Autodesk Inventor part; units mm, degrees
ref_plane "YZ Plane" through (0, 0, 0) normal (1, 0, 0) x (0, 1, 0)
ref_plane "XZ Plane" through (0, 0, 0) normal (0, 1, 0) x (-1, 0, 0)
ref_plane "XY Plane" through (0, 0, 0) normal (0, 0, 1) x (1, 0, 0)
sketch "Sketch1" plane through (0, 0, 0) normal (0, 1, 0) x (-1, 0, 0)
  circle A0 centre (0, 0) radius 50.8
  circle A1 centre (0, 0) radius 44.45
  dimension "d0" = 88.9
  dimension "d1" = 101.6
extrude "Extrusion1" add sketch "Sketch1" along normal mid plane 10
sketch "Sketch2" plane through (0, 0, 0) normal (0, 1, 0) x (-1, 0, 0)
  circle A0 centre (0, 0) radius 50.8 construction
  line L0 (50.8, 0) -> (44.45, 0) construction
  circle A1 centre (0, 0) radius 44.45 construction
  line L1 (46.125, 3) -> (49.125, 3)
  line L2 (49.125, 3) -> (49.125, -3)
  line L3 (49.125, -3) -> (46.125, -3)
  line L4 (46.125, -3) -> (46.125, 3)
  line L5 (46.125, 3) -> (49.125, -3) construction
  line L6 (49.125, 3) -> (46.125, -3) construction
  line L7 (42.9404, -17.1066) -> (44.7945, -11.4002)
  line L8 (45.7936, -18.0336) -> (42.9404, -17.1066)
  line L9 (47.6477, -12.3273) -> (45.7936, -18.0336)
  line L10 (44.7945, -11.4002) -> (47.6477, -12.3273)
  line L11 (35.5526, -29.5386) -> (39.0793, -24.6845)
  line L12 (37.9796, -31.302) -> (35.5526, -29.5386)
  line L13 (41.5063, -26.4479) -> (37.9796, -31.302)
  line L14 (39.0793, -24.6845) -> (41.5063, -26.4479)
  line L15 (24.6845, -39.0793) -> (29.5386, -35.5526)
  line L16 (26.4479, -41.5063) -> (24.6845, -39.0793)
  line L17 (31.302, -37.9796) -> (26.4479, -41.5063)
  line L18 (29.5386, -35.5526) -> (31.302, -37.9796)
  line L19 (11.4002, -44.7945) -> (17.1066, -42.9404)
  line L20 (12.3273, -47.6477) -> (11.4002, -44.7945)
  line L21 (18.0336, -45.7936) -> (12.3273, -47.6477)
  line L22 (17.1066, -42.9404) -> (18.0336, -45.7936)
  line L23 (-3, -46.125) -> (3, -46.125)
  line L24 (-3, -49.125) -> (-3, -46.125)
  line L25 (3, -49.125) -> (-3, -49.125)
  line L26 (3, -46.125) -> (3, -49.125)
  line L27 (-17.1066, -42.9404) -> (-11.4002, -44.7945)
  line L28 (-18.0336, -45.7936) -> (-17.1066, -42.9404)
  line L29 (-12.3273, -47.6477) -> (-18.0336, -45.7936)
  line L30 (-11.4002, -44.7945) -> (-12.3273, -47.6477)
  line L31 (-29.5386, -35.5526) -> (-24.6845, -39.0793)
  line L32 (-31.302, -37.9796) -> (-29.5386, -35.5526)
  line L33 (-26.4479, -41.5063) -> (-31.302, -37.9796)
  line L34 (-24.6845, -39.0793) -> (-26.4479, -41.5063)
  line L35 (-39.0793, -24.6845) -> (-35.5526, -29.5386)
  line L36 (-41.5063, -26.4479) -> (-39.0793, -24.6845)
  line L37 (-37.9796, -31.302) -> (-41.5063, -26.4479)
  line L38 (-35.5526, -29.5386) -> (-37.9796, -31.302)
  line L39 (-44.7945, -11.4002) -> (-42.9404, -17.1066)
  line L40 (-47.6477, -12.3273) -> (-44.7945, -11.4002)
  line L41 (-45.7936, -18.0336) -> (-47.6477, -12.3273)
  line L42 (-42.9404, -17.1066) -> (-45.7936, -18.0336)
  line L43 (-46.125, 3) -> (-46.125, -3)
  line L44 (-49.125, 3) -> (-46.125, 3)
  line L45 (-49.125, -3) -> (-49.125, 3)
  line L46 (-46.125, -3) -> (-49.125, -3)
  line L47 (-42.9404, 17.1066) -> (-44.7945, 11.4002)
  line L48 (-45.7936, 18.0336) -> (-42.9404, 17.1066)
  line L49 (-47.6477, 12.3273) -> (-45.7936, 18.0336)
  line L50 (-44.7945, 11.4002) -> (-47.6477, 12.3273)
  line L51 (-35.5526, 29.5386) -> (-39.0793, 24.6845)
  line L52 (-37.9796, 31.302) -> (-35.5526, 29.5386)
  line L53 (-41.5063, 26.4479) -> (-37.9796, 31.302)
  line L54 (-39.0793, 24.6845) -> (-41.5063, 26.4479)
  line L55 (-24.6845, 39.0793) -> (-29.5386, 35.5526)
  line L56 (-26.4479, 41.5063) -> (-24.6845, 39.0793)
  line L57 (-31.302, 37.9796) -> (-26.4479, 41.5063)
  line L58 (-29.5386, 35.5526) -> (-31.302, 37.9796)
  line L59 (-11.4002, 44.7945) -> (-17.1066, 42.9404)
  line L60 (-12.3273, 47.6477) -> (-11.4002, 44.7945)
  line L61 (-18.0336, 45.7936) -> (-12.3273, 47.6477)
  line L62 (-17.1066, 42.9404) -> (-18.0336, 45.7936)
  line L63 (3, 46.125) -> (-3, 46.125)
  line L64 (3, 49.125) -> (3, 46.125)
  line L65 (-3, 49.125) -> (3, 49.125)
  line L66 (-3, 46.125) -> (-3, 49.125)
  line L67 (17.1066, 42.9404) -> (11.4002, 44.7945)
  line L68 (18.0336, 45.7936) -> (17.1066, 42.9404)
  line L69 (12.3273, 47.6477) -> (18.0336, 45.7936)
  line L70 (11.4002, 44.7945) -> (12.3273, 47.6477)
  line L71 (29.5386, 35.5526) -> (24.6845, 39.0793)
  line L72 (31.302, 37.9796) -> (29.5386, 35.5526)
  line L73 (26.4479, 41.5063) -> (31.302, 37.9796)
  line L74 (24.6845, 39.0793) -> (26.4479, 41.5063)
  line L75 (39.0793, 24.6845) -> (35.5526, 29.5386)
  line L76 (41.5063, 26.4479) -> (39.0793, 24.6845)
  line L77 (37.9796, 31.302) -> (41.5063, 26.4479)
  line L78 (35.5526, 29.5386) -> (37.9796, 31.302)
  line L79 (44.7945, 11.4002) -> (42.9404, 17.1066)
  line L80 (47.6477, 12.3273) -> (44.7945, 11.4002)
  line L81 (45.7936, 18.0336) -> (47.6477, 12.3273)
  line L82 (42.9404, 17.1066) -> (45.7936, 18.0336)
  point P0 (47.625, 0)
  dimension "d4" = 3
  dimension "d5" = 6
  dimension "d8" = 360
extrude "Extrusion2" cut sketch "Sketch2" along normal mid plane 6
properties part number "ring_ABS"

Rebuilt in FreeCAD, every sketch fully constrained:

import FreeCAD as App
import Part
import Sketcher
from FreeCAD import Vector
Q = App.Units.Quantity

doc = App.newDocument("Part")
body = doc.addObject("PartDesign::Body", "Body")

# Sketch on XZ plane
sketch1 = body.newObject("Sketcher::SketchObject", "Sketch")
sketch1.AttachmentSupport = (doc.getObject("XZ_Plane"), [""])
sketch1.MapMode = "FlatFace"
sketch1.addGeometry([
    Part.Circle(Vector(0, 0, 0), Vector(0, 0, 1), 51),
    Part.Circle(Vector(0, 0, 0), Vector(0, 0, 1), 44),
], False)
sketch1.addConstraint([
    Sketcher.Constraint("Coincident", 0, 3, -1, 1),
    Sketcher.Constraint("Coincident", 1, 3, -1, 1),
    Sketcher.Constraint("Diameter", 0, Q("101.6 mm")),
    Sketcher.Constraint("Diameter", 1, Q("88.9 mm")),
])
pad1 = body.newObject("PartDesign::Pad", "Pad")
pad1.Profile = sketch1
pad1.Length = 10
pad1.Midplane = True

# Sketch on XZ plane
sketch2 = body.newObject("Sketcher::SketchObject", "Sketch001")
sketch2.AttachmentSupport = (doc.getObject("XZ_Plane"), [""])
sketch2.MapMode = "FlatFace"
sketch2.addGeometry([
    Part.LineSegment(Vector(-49.1, 3, 0), Vector(-46.1, 3, 0)),  # 0
    Part.LineSegment(Vector(-46.1, 3, 0), Vector(-46.1, -3, 0)),  # 1
    Part.LineSegment(Vector(-46.1, -3, 0), Vector(-49.1, -3, 0)),  # 2
    Part.LineSegment(Vector(-49.1, -3, 0), Vector(-49.1, 3, 0)),  # 3
    Part.LineSegment(Vector(-44.8, -11.4, 0), Vector(-42.9, -17.1, 0)),  # 4
    Part.LineSegment(Vector(-42.9, -17.1, 0), Vector(-45.8, -18, 0)),  # 5
    Part.LineSegment(Vector(-45.8, -18, 0), Vector(-47.6, -12.3, 0)),  # 6
    Part.LineSegment(Vector(-47.6, -12.3, 0), Vector(-44.8, -11.4, 0)),  # 7
    Part.LineSegment(Vector(-39.1, -24.7, 0), Vector(-35.6, -29.5, 0)),  # 8
    Part.LineSegment(Vector(-35.6, -29.5, 0), Vector(-38, -31.3, 0)),  # 9
    Part.LineSegment(Vector(-38, -31.3, 0), Vector(-41.5, -26.4, 0)),  # 10
    Part.LineSegment(Vector(-41.5, -26.4, 0), Vector(-39.1, -24.7, 0)),  # 11
    Part.LineSegment(Vector(-29.5, -35.6, 0), Vector(-24.7, -39.1, 0)),  # 12
    Part.LineSegment(Vector(-24.7, -39.1, 0), Vector(-26.4, -41.5, 0)),  # 13
    Part.LineSegment(Vector(-26.4, -41.5, 0), Vector(-31.3, -38, 0)),  # 14
    Part.LineSegment(Vector(-31.3, -38, 0), Vector(-29.5, -35.6, 0)),  # 15
    Part.LineSegment(Vector(-17.1, -42.9, 0), Vector(-11.4, -44.8, 0)),  # 16
    Part.LineSegment(Vector(-11.4, -44.8, 0), Vector(-12.3, -47.6, 0)),  # 17
    Part.LineSegment(Vector(-12.3, -47.6, 0), Vector(-18, -45.8, 0)),  # 18
    Part.LineSegment(Vector(-18, -45.8, 0), Vector(-17.1, -42.9, 0)),  # 19
    Part.LineSegment(Vector(-3, -46.1, 0), Vector(3, -46.1, 0)),  # 20
    Part.LineSegment(Vector(3, -46.1, 0), Vector(3, -49.1, 0)),  # 21
    Part.LineSegment(Vector(3, -49.1, 0), Vector(-3, -49.1, 0)),  # 22
    Part.LineSegment(Vector(-3, -49.1, 0), Vector(-3, -46.1, 0)),  # 23
    Part.LineSegment(Vector(11.4, -44.8, 0), Vector(17.1, -42.9, 0)),  # 24
    Part.LineSegment(Vector(17.1, -42.9, 0), Vector(18, -45.8, 0)),  # 25
    Part.LineSegment(Vector(18, -45.8, 0), Vector(12.3, -47.6, 0)),  # 26
    Part.LineSegment(Vector(12.3, -47.6, 0), Vector(11.4, -44.8, 0)),  # 27
    Part.LineSegment(Vector(24.7, -39.1, 0), Vector(29.5, -35.6, 0)),  # 28
    Part.LineSegment(Vector(29.5, -35.6, 0), Vector(31.3, -38, 0)),  # 29
    Part.LineSegment(Vector(31.3, -38, 0), Vector(26.4, -41.5, 0)),  # 30
    Part.LineSegment(Vector(26.4, -41.5, 0), Vector(24.7, -39.1, 0)),  # 31
    Part.LineSegment(Vector(35.6, -29.5, 0), Vector(39.1, -24.7, 0)),  # 32
    Part.LineSegment(Vector(39.1, -24.7, 0), Vector(41.5, -26.4, 0)),  # 33
    Part.LineSegment(Vector(41.5, -26.4, 0), Vector(38, -31.3, 0)),  # 34
    Part.LineSegment(Vector(38, -31.3, 0), Vector(35.6, -29.5, 0)),  # 35
    Part.LineSegment(Vector(42.9, -17.1, 0), Vector(44.8, -11.4, 0)),  # 36
    Part.LineSegment(Vector(44.8, -11.4, 0), Vector(47.6, -12.3, 0)),  # 37
    Part.LineSegment(Vector(47.6, -12.3, 0), Vector(45.8, -18, 0)),  # 38
    Part.LineSegment(Vector(45.8, -18, 0), Vector(42.9, -17.1, 0)),  # 39
    Part.LineSegment(Vector(46.1, -3, 0), Vector(46.1, 3, 0)),  # 40
    Part.LineSegment(Vector(46.1, 3, 0), Vector(49.1, 3, 0)),  # 41
    Part.LineSegment(Vector(49.1, 3, 0), Vector(49.1, -3, 0)),  # 42
    Part.LineSegment(Vector(49.1, -3, 0), Vector(46.1, -3, 0)),  # 43
    Part.LineSegment(Vector(44.8, 11.4, 0), Vector(42.9, 17.1, 0)),  # 44
    Part.LineSegment(Vector(42.9, 17.1, 0), Vector(45.8, 18, 0)),  # 45
    Part.LineSegment(Vector(45.8, 18, 0), Vector(47.6, 12.3, 0)),  # 46
    Part.LineSegment(Vector(47.6, 12.3, 0), Vector(44.8, 11.4, 0)),  # 47
    Part.LineSegment(Vector(39.1, 24.7, 0), Vector(35.6, 29.5, 0)),  # 48
    Part.LineSegment(Vector(35.6, 29.5, 0), Vector(38, 31.3, 0)),  # 49
    Part.LineSegment(Vector(38, 31.3, 0), Vector(41.5, 26.4, 0)),  # 50
    Part.LineSegment(Vector(41.5, 26.4, 0), Vector(39.1, 24.7, 0)),  # 51
    Part.LineSegment(Vector(29.5, 35.6, 0), Vector(24.7, 39.1, 0)),  # 52
    Part.LineSegment(Vector(24.7, 39.1, 0), Vector(26.4, 41.5, 0)),  # 53
    Part.LineSegment(Vector(26.4, 41.5, 0), Vector(31.3, 38, 0)),  # 54
    Part.LineSegment(Vector(31.3, 38, 0), Vector(29.5, 35.6, 0)),  # 55
    Part.LineSegment(Vector(17.1, 42.9, 0), Vector(11.4, 44.8, 0)),  # 56
    Part.LineSegment(Vector(11.4, 44.8, 0), Vector(12.3, 47.6, 0)),  # 57
    Part.LineSegment(Vector(12.3, 47.6, 0), Vector(18, 45.8, 0)),  # 58
    Part.LineSegment(Vector(18, 45.8, 0), Vector(17.1, 42.9, 0)),  # 59
    Part.LineSegment(Vector(3, 46.1, 0), Vector(-3, 46.1, 0)),  # 60
    Part.LineSegment(Vector(-3, 46.1, 0), Vector(-3, 49.1, 0)),  # 61
    Part.LineSegment(Vector(-3, 49.1, 0), Vector(3, 49.1, 0)),  # 62
    Part.LineSegment(Vector(3, 49.1, 0), Vector(3, 46.1, 0)),  # 63
    Part.LineSegment(Vector(-11.4, 44.8, 0), Vector(-17.1, 42.9, 0)),  # 64
    Part.LineSegment(Vector(-17.1, 42.9, 0), Vector(-18, 45.8, 0)),  # 65
    Part.LineSegment(Vector(-18, 45.8, 0), Vector(-12.3, 47.6, 0)),  # 66
    Part.LineSegment(Vector(-12.3, 47.6, 0), Vector(-11.4, 44.8, 0)),  # 67
    Part.LineSegment(Vector(-24.7, 39.1, 0), Vector(-29.5, 35.6, 0)),  # 68
    Part.LineSegment(Vector(-29.5, 35.6, 0), Vector(-31.3, 38, 0)),  # 69
    Part.LineSegment(Vector(-31.3, 38, 0), Vector(-26.4, 41.5, 0)),  # 70
    Part.LineSegment(Vector(-26.4, 41.5, 0), Vector(-24.7, 39.1, 0)),  # 71
    Part.LineSegment(Vector(-35.6, 29.5, 0), Vector(-39.1, 24.7, 0)),  # 72
    Part.LineSegment(Vector(-39.1, 24.7, 0), Vector(-41.5, 26.4, 0)),  # 73
    Part.LineSegment(Vector(-41.5, 26.4, 0), Vector(-38, 31.3, 0)),  # 74
    Part.LineSegment(Vector(-38, 31.3, 0), Vector(-35.6, 29.5, 0)),  # 75
    Part.LineSegment(Vector(-42.9, 17.1, 0), Vector(-44.8, 11.4, 0)),  # 76
    Part.LineSegment(Vector(-44.8, 11.4, 0), Vector(-47.6, 12.3, 0)),  # 77
    Part.LineSegment(Vector(-47.6, 12.3, 0), Vector(-45.8, 18, 0)),  # 78
    Part.LineSegment(Vector(-45.8, 18, 0), Vector(-42.9, 17.1, 0)),  # 79
], False)
sketch2.addConstraint([
    Sketcher.Constraint("Coincident", 0, 2, 1, 1),
    Sketcher.Constraint("Coincident", 1, 2, 2, 1),
    Sketcher.Constraint("Coincident", 2, 2, 3, 1),
    Sketcher.Constraint("Coincident", 3, 2, 0, 1),
    Sketcher.Constraint("Coincident", 4, 2, 5, 1),
    Sketcher.Constraint("Coincident", 5, 2, 6, 1),
    Sketcher.Constraint("Coincident", 6, 2, 7, 1),
    Sketcher.Constraint("Coincident", 7, 2, 4, 1),
    Sketcher.Constraint("Coincident", 8, 2, 9, 1),
    Sketcher.Constraint("Coincident", 9, 2, 10, 1),
    Sketcher.Constraint("Coincident", 10, 2, 11, 1),
    Sketcher.Constraint("Coincident", 11, 2, 8, 1),
    Sketcher.Constraint("Coincident", 12, 2, 13, 1),
    Sketcher.Constraint("Coincident", 13, 2, 14, 1),
    Sketcher.Constraint("Coincident", 14, 2, 15, 1),
    Sketcher.Constraint("Coincident", 15, 2, 12, 1),
    Sketcher.Constraint("Coincident", 16, 2, 17, 1),
    Sketcher.Constraint("Coincident", 17, 2, 18, 1),
    Sketcher.Constraint("Coincident", 18, 2, 19, 1),
    Sketcher.Constraint("Coincident", 19, 2, 16, 1),
    Sketcher.Constraint("Coincident", 20, 2, 21, 1),
    Sketcher.Constraint("Coincident", 21, 2, 22, 1),
    Sketcher.Constraint("Coincident", 22, 2, 23, 1),
    Sketcher.Constraint("Coincident", 23, 2, 20, 1),
    Sketcher.Constraint("Coincident", 24, 2, 25, 1),
    Sketcher.Constraint("Coincident", 25, 2, 26, 1),
    Sketcher.Constraint("Coincident", 26, 2, 27, 1),
    Sketcher.Constraint("Coincident", 27, 2, 24, 1),
    Sketcher.Constraint("Coincident", 28, 2, 29, 1),
    Sketcher.Constraint("Coincident", 29, 2, 30, 1),
    Sketcher.Constraint("Coincident", 30, 2, 31, 1),
    Sketcher.Constraint("Coincident", 31, 2, 28, 1),
    Sketcher.Constraint("Coincident", 32, 2, 33, 1),
    Sketcher.Constraint("Coincident", 33, 2, 34, 1),
    Sketcher.Constraint("Coincident", 34, 2, 35, 1),
    Sketcher.Constraint("Coincident", 35, 2, 32, 1),
    Sketcher.Constraint("Coincident", 36, 2, 37, 1),
    Sketcher.Constraint("Coincident", 37, 2, 38, 1),
    Sketcher.Constraint("Coincident", 38, 2, 39, 1),
    Sketcher.Constraint("Coincident", 39, 2, 36, 1),
    Sketcher.Constraint("Coincident", 40, 2, 41, 1),
    Sketcher.Constraint("Coincident", 41, 2, 42, 1),
    Sketcher.Constraint("Coincident", 42, 2, 43, 1),
    Sketcher.Constraint("Coincident", 43, 2, 40, 1),
    Sketcher.Constraint("Coincident", 44, 2, 45, 1),
    Sketcher.Constraint("Coincident", 45, 2, 46, 1),
    Sketcher.Constraint("Coincident", 46, 2, 47, 1),
    Sketcher.Constraint("Coincident", 47, 2, 44, 1),
    Sketcher.Constraint("Coincident", 48, 2, 49, 1),
    Sketcher.Constraint("Coincident", 49, 2, 50, 1),
    Sketcher.Constraint("Coincident", 50, 2, 51, 1),
    Sketcher.Constraint("Coincident", 51, 2, 48, 1),
    Sketcher.Constraint("Coincident", 52, 2, 53, 1),
    Sketcher.Constraint("Coincident", 53, 2, 54, 1),
    Sketcher.Constraint("Coincident", 54, 2, 55, 1),
    Sketcher.Constraint("Coincident", 55, 2, 52, 1),
    Sketcher.Constraint("Coincident", 56, 2, 57, 1),
    Sketcher.Constraint("Coincident", 57, 2, 58, 1),
    Sketcher.Constraint("Coincident", 58, 2, 59, 1),
    Sketcher.Constraint("Coincident", 59, 2, 56, 1),
    Sketcher.Constraint("Coincident", 60, 2, 61, 1),
    Sketcher.Constraint("Coincident", 61, 2, 62, 1),
    Sketcher.Constraint("Coincident", 62, 2, 63, 1),
    Sketcher.Constraint("Coincident", 63, 2, 60, 1),
    Sketcher.Constraint("Coincident", 64, 2, 65, 1),
    Sketcher.Constraint("Coincident", 65, 2, 66, 1),
    Sketcher.Constraint("Coincident", 66, 2, 67, 1),
    Sketcher.Constraint("Coincident", 67, 2, 64, 1),
    Sketcher.Constraint("Coincident", 68, 2, 69, 1),
    Sketcher.Constraint("Coincident", 69, 2, 70, 1),
    Sketcher.Constraint("Coincident", 70, 2, 71, 1),
    Sketcher.Constraint("Coincident", 71, 2, 68, 1),
    Sketcher.Constraint("Coincident", 72, 2, 73, 1),
    Sketcher.Constraint("Coincident", 73, 2, 74, 1),
    Sketcher.Constraint("Coincident", 74, 2, 75, 1),
    Sketcher.Constraint("Coincident", 75, 2, 72, 1),
    Sketcher.Constraint("Coincident", 76, 2, 77, 1),
    Sketcher.Constraint("Coincident", 77, 2, 78, 1),
    Sketcher.Constraint("Coincident", 78, 2, 79, 1),
    Sketcher.Constraint("Coincident", 79, 2, 76, 1),
    Sketcher.Constraint("Horizontal", 0),
    Sketcher.Constraint("Vertical", 1),
    Sketcher.Constraint("Horizontal", 2),
    Sketcher.Constraint("Vertical", 3),
    Sketcher.Constraint("Horizontal", 20),
    Sketcher.Constraint("Vertical", 21),
    Sketcher.Constraint("Horizontal", 22),
    Sketcher.Constraint("Vertical", 23),
    Sketcher.Constraint("Vertical", 40),
    Sketcher.Constraint("Horizontal", 41),
    Sketcher.Constraint("Vertical", 42),
    Sketcher.Constraint("Horizontal", 43),
    Sketcher.Constraint("Horizontal", 60),
    Sketcher.Constraint("Vertical", 61),
    Sketcher.Constraint("Horizontal", 62),
    Sketcher.Constraint("Vertical", 63),
    Sketcher.Constraint("Symmetric", 1, 2, 40, 2, -1, 1),
    Sketcher.Constraint("Symmetric", 3, 2, 42, 2, -1, 1),
    Sketcher.Constraint("Symmetric", 4, 2, 44, 2, -1, 1),
    Sketcher.Constraint("Symmetric", 5, 2, 45, 2, -1, 1),
    Sketcher.Constraint("Symmetric", 6, 2, 46, 2, -1, 1),
    Sketcher.Constraint("Symmetric", 7, 2, 47, 2, -1, 1),
    Sketcher.Constraint("Symmetric", 8, 2, 48, 2, -1, 1),
    Sketcher.Constraint("Symmetric", 9, 2, 49, 2, -1, 1),
    Sketcher.Constraint("Symmetric", 10, 2, 50, 2, -1, 1),
    Sketcher.Constraint("Symmetric", 11, 2, 51, 2, -1, 1),
    Sketcher.Constraint("Symmetric", 12, 2, 52, 2, -1, 1),
    Sketcher.Constraint("Symmetric", 13, 2, 53, 2, -1, 1),
    Sketcher.Constraint("Symmetric", 14, 2, 54, 2, -1, 1),
    Sketcher.Constraint("Symmetric", 15, 2, 55, 2, -1, 1),
    Sketcher.Constraint("Symmetric", 16, 2, 56, 2, -1, 1),
    Sketcher.Constraint("Symmetric", 17, 2, 57, 2, -1, 1),
    Sketcher.Constraint("Symmetric", 18, 2, 58, 2, -1, 1),
    Sketcher.Constraint("Symmetric", 19, 2, 59, 2, -1, 1),
    Sketcher.Constraint("Symmetric", 20, 2, 60, 2, -1, 1),
    Sketcher.Constraint("Symmetric", 22, 2, 62, 2, -1, 1),
    Sketcher.Constraint("Symmetric", 24, 2, 64, 2, -1, 1),
    Sketcher.Constraint("Symmetric", 25, 2, 65, 2, -1, 1),
    Sketcher.Constraint("Symmetric", 26, 2, 66, 2, -1, 1),
    Sketcher.Constraint("Symmetric", 27, 2, 67, 2, -1, 1),
    Sketcher.Constraint("Symmetric", 28, 2, 68, 2, -1, 1),
    Sketcher.Constraint("Symmetric", 29, 2, 69, 2, -1, 1),
    Sketcher.Constraint("Symmetric", 30, 2, 70, 2, -1, 1),
    Sketcher.Constraint("Symmetric", 31, 2, 71, 2, -1, 1),
    Sketcher.Constraint("Symmetric", 32, 2, 72, 2, -1, 1),
    Sketcher.Constraint("Symmetric", 33, 2, 73, 2, -1, 1),
    Sketcher.Constraint("Symmetric", 34, 2, 74, 2, -1, 1),
    Sketcher.Constraint("Symmetric", 35, 2, 75, 2, -1, 1),
    Sketcher.Constraint("Symmetric", 36, 2, 76, 2, -1, 1),
    Sketcher.Constraint("Symmetric", 37, 2, 77, 2, -1, 1),
    Sketcher.Constraint("Symmetric", 38, 2, 78, 2, -1, 1),
    Sketcher.Constraint("Symmetric", 39, 2, 79, 2, -1, 1),
    Sketcher.Constraint("Symmetric", 19, 2, 24, 2, -2),
    Sketcher.Constraint("Symmetric", 18, 2, 25, 2, -2),
    Sketcher.Constraint("Symmetric", 17, 2, 26, 2, -2),
    Sketcher.Constraint("Symmetric", 16, 2, 27, 2, -2),
    Sketcher.Constraint("Symmetric", 15, 2, 28, 2, -2),
    Sketcher.Constraint("Symmetric", 14, 2, 29, 2, -2),
    Sketcher.Constraint("Symmetric", 13, 2, 30, 2, -2),
    Sketcher.Constraint("Symmetric", 12, 2, 31, 2, -2),
    Sketcher.Constraint("Symmetric", 11, 2, 32, 2, -2),
    Sketcher.Constraint("Symmetric", 10, 2, 33, 2, -2),
    Sketcher.Constraint("Symmetric", 9, 2, 34, 2, -2),
    Sketcher.Constraint("Symmetric", 8, 2, 35, 2, -2),
    Sketcher.Constraint("Symmetric", 7, 2, 36, 2, -2),
    Sketcher.Constraint("Symmetric", 6, 2, 37, 2, -2),
    Sketcher.Constraint("Symmetric", 5, 2, 38, 2, -2),
    Sketcher.Constraint("Symmetric", 4, 2, 39, 2, -2),
    Sketcher.Constraint("Perpendicular", 4, 5),
    Sketcher.Constraint("Perpendicular", 5, 6),
    Sketcher.Constraint("Perpendicular", 6, 7),
    Sketcher.Constraint("Perpendicular", 8, 9),
    Sketcher.Constraint("Perpendicular", 9, 10),
    Sketcher.Constraint("Perpendicular", 10, 11),
    Sketcher.Constraint("Perpendicular", 12, 13),
    Sketcher.Constraint("Perpendicular", 13, 14),
    Sketcher.Constraint("Perpendicular", 14, 15),
    Sketcher.Constraint("Perpendicular", 16, 17),
    Sketcher.Constraint("Perpendicular", 17, 18),
    Sketcher.Constraint("Perpendicular", 18, 19),
    Sketcher.Constraint("Parallel", 7, 24),
    Sketcher.Constraint("Parallel", 11, 28),
    Sketcher.Constraint("Horizontal", 3, 2, 40, 2),
    Sketcher.Constraint("Vertical", 23, 2, 60, 2),
    Sketcher.Constraint("Equal", 62, 1),
    Sketcher.Constraint("Equal", 43, 21),
    Sketcher.Constraint("Equal", 6, 8),
    Sketcher.Constraint("Equal", 7, 9),
    Sketcher.Constraint("Equal", 10, 12),
    Sketcher.Constraint("Equal", 11, 13),
    Sketcher.Constraint("Equal", 14, 16),
    Sketcher.Constraint("Equal", 15, 17),
    Sketcher.Constraint("DistanceX", 0, 1, 0, 2, Q("3 mm")),
    Sketcher.Constraint("DistanceX", 20, 1, 20, 2, Q("6 mm")),
    Sketcher.Constraint("Distance", 4, Q("6 mm")),
    Sketcher.Constraint("Distance", 5, Q("3 mm")),
    Sketcher.Constraint("Angle", 4, Q("-72.0002 deg")),
    Sketcher.Constraint("Angle", 8, Q("-54 deg")),
    Sketcher.Constraint("DistanceX", 0, 2, -1, 1, Q("46.125 mm")),
    Sketcher.Constraint("DistanceY", 9, 2, -1, 1, Q("31.302 mm")),
    Sketcher.Constraint("DistanceX", 13, 2, -1, 1, Q("26.448 mm")),
    Sketcher.Constraint("DistanceY", 20, 2, -1, 1, Q("46.125 mm")),
    Sketcher.Constraint("DistanceX", 4, 2, -1, 1, Q("42.9404 mm")),
    Sketcher.Constraint("DistanceY", 4, 2, -1, 1, Q("17.1066 mm")),
    Sketcher.Constraint("DistanceX", 8, 2, -1, 1, Q("35.5526 mm")),
    Sketcher.Constraint("DistanceY", 12, 2, -1, 1, Q("39.0793 mm")),
    Sketcher.Constraint("DistanceX", 16, 2, -1, 1, Q("11.4002 mm")),
    Sketcher.Constraint("DistanceY", 16, 2, -1, 1, Q("44.7945 mm")),
])
pocket1 = body.newObject("PartDesign::Pocket", "Pocket")
pocket1.Profile = sketch2
pocket1.Length = 6
pocket1.Midplane = True

doc.recompute()
